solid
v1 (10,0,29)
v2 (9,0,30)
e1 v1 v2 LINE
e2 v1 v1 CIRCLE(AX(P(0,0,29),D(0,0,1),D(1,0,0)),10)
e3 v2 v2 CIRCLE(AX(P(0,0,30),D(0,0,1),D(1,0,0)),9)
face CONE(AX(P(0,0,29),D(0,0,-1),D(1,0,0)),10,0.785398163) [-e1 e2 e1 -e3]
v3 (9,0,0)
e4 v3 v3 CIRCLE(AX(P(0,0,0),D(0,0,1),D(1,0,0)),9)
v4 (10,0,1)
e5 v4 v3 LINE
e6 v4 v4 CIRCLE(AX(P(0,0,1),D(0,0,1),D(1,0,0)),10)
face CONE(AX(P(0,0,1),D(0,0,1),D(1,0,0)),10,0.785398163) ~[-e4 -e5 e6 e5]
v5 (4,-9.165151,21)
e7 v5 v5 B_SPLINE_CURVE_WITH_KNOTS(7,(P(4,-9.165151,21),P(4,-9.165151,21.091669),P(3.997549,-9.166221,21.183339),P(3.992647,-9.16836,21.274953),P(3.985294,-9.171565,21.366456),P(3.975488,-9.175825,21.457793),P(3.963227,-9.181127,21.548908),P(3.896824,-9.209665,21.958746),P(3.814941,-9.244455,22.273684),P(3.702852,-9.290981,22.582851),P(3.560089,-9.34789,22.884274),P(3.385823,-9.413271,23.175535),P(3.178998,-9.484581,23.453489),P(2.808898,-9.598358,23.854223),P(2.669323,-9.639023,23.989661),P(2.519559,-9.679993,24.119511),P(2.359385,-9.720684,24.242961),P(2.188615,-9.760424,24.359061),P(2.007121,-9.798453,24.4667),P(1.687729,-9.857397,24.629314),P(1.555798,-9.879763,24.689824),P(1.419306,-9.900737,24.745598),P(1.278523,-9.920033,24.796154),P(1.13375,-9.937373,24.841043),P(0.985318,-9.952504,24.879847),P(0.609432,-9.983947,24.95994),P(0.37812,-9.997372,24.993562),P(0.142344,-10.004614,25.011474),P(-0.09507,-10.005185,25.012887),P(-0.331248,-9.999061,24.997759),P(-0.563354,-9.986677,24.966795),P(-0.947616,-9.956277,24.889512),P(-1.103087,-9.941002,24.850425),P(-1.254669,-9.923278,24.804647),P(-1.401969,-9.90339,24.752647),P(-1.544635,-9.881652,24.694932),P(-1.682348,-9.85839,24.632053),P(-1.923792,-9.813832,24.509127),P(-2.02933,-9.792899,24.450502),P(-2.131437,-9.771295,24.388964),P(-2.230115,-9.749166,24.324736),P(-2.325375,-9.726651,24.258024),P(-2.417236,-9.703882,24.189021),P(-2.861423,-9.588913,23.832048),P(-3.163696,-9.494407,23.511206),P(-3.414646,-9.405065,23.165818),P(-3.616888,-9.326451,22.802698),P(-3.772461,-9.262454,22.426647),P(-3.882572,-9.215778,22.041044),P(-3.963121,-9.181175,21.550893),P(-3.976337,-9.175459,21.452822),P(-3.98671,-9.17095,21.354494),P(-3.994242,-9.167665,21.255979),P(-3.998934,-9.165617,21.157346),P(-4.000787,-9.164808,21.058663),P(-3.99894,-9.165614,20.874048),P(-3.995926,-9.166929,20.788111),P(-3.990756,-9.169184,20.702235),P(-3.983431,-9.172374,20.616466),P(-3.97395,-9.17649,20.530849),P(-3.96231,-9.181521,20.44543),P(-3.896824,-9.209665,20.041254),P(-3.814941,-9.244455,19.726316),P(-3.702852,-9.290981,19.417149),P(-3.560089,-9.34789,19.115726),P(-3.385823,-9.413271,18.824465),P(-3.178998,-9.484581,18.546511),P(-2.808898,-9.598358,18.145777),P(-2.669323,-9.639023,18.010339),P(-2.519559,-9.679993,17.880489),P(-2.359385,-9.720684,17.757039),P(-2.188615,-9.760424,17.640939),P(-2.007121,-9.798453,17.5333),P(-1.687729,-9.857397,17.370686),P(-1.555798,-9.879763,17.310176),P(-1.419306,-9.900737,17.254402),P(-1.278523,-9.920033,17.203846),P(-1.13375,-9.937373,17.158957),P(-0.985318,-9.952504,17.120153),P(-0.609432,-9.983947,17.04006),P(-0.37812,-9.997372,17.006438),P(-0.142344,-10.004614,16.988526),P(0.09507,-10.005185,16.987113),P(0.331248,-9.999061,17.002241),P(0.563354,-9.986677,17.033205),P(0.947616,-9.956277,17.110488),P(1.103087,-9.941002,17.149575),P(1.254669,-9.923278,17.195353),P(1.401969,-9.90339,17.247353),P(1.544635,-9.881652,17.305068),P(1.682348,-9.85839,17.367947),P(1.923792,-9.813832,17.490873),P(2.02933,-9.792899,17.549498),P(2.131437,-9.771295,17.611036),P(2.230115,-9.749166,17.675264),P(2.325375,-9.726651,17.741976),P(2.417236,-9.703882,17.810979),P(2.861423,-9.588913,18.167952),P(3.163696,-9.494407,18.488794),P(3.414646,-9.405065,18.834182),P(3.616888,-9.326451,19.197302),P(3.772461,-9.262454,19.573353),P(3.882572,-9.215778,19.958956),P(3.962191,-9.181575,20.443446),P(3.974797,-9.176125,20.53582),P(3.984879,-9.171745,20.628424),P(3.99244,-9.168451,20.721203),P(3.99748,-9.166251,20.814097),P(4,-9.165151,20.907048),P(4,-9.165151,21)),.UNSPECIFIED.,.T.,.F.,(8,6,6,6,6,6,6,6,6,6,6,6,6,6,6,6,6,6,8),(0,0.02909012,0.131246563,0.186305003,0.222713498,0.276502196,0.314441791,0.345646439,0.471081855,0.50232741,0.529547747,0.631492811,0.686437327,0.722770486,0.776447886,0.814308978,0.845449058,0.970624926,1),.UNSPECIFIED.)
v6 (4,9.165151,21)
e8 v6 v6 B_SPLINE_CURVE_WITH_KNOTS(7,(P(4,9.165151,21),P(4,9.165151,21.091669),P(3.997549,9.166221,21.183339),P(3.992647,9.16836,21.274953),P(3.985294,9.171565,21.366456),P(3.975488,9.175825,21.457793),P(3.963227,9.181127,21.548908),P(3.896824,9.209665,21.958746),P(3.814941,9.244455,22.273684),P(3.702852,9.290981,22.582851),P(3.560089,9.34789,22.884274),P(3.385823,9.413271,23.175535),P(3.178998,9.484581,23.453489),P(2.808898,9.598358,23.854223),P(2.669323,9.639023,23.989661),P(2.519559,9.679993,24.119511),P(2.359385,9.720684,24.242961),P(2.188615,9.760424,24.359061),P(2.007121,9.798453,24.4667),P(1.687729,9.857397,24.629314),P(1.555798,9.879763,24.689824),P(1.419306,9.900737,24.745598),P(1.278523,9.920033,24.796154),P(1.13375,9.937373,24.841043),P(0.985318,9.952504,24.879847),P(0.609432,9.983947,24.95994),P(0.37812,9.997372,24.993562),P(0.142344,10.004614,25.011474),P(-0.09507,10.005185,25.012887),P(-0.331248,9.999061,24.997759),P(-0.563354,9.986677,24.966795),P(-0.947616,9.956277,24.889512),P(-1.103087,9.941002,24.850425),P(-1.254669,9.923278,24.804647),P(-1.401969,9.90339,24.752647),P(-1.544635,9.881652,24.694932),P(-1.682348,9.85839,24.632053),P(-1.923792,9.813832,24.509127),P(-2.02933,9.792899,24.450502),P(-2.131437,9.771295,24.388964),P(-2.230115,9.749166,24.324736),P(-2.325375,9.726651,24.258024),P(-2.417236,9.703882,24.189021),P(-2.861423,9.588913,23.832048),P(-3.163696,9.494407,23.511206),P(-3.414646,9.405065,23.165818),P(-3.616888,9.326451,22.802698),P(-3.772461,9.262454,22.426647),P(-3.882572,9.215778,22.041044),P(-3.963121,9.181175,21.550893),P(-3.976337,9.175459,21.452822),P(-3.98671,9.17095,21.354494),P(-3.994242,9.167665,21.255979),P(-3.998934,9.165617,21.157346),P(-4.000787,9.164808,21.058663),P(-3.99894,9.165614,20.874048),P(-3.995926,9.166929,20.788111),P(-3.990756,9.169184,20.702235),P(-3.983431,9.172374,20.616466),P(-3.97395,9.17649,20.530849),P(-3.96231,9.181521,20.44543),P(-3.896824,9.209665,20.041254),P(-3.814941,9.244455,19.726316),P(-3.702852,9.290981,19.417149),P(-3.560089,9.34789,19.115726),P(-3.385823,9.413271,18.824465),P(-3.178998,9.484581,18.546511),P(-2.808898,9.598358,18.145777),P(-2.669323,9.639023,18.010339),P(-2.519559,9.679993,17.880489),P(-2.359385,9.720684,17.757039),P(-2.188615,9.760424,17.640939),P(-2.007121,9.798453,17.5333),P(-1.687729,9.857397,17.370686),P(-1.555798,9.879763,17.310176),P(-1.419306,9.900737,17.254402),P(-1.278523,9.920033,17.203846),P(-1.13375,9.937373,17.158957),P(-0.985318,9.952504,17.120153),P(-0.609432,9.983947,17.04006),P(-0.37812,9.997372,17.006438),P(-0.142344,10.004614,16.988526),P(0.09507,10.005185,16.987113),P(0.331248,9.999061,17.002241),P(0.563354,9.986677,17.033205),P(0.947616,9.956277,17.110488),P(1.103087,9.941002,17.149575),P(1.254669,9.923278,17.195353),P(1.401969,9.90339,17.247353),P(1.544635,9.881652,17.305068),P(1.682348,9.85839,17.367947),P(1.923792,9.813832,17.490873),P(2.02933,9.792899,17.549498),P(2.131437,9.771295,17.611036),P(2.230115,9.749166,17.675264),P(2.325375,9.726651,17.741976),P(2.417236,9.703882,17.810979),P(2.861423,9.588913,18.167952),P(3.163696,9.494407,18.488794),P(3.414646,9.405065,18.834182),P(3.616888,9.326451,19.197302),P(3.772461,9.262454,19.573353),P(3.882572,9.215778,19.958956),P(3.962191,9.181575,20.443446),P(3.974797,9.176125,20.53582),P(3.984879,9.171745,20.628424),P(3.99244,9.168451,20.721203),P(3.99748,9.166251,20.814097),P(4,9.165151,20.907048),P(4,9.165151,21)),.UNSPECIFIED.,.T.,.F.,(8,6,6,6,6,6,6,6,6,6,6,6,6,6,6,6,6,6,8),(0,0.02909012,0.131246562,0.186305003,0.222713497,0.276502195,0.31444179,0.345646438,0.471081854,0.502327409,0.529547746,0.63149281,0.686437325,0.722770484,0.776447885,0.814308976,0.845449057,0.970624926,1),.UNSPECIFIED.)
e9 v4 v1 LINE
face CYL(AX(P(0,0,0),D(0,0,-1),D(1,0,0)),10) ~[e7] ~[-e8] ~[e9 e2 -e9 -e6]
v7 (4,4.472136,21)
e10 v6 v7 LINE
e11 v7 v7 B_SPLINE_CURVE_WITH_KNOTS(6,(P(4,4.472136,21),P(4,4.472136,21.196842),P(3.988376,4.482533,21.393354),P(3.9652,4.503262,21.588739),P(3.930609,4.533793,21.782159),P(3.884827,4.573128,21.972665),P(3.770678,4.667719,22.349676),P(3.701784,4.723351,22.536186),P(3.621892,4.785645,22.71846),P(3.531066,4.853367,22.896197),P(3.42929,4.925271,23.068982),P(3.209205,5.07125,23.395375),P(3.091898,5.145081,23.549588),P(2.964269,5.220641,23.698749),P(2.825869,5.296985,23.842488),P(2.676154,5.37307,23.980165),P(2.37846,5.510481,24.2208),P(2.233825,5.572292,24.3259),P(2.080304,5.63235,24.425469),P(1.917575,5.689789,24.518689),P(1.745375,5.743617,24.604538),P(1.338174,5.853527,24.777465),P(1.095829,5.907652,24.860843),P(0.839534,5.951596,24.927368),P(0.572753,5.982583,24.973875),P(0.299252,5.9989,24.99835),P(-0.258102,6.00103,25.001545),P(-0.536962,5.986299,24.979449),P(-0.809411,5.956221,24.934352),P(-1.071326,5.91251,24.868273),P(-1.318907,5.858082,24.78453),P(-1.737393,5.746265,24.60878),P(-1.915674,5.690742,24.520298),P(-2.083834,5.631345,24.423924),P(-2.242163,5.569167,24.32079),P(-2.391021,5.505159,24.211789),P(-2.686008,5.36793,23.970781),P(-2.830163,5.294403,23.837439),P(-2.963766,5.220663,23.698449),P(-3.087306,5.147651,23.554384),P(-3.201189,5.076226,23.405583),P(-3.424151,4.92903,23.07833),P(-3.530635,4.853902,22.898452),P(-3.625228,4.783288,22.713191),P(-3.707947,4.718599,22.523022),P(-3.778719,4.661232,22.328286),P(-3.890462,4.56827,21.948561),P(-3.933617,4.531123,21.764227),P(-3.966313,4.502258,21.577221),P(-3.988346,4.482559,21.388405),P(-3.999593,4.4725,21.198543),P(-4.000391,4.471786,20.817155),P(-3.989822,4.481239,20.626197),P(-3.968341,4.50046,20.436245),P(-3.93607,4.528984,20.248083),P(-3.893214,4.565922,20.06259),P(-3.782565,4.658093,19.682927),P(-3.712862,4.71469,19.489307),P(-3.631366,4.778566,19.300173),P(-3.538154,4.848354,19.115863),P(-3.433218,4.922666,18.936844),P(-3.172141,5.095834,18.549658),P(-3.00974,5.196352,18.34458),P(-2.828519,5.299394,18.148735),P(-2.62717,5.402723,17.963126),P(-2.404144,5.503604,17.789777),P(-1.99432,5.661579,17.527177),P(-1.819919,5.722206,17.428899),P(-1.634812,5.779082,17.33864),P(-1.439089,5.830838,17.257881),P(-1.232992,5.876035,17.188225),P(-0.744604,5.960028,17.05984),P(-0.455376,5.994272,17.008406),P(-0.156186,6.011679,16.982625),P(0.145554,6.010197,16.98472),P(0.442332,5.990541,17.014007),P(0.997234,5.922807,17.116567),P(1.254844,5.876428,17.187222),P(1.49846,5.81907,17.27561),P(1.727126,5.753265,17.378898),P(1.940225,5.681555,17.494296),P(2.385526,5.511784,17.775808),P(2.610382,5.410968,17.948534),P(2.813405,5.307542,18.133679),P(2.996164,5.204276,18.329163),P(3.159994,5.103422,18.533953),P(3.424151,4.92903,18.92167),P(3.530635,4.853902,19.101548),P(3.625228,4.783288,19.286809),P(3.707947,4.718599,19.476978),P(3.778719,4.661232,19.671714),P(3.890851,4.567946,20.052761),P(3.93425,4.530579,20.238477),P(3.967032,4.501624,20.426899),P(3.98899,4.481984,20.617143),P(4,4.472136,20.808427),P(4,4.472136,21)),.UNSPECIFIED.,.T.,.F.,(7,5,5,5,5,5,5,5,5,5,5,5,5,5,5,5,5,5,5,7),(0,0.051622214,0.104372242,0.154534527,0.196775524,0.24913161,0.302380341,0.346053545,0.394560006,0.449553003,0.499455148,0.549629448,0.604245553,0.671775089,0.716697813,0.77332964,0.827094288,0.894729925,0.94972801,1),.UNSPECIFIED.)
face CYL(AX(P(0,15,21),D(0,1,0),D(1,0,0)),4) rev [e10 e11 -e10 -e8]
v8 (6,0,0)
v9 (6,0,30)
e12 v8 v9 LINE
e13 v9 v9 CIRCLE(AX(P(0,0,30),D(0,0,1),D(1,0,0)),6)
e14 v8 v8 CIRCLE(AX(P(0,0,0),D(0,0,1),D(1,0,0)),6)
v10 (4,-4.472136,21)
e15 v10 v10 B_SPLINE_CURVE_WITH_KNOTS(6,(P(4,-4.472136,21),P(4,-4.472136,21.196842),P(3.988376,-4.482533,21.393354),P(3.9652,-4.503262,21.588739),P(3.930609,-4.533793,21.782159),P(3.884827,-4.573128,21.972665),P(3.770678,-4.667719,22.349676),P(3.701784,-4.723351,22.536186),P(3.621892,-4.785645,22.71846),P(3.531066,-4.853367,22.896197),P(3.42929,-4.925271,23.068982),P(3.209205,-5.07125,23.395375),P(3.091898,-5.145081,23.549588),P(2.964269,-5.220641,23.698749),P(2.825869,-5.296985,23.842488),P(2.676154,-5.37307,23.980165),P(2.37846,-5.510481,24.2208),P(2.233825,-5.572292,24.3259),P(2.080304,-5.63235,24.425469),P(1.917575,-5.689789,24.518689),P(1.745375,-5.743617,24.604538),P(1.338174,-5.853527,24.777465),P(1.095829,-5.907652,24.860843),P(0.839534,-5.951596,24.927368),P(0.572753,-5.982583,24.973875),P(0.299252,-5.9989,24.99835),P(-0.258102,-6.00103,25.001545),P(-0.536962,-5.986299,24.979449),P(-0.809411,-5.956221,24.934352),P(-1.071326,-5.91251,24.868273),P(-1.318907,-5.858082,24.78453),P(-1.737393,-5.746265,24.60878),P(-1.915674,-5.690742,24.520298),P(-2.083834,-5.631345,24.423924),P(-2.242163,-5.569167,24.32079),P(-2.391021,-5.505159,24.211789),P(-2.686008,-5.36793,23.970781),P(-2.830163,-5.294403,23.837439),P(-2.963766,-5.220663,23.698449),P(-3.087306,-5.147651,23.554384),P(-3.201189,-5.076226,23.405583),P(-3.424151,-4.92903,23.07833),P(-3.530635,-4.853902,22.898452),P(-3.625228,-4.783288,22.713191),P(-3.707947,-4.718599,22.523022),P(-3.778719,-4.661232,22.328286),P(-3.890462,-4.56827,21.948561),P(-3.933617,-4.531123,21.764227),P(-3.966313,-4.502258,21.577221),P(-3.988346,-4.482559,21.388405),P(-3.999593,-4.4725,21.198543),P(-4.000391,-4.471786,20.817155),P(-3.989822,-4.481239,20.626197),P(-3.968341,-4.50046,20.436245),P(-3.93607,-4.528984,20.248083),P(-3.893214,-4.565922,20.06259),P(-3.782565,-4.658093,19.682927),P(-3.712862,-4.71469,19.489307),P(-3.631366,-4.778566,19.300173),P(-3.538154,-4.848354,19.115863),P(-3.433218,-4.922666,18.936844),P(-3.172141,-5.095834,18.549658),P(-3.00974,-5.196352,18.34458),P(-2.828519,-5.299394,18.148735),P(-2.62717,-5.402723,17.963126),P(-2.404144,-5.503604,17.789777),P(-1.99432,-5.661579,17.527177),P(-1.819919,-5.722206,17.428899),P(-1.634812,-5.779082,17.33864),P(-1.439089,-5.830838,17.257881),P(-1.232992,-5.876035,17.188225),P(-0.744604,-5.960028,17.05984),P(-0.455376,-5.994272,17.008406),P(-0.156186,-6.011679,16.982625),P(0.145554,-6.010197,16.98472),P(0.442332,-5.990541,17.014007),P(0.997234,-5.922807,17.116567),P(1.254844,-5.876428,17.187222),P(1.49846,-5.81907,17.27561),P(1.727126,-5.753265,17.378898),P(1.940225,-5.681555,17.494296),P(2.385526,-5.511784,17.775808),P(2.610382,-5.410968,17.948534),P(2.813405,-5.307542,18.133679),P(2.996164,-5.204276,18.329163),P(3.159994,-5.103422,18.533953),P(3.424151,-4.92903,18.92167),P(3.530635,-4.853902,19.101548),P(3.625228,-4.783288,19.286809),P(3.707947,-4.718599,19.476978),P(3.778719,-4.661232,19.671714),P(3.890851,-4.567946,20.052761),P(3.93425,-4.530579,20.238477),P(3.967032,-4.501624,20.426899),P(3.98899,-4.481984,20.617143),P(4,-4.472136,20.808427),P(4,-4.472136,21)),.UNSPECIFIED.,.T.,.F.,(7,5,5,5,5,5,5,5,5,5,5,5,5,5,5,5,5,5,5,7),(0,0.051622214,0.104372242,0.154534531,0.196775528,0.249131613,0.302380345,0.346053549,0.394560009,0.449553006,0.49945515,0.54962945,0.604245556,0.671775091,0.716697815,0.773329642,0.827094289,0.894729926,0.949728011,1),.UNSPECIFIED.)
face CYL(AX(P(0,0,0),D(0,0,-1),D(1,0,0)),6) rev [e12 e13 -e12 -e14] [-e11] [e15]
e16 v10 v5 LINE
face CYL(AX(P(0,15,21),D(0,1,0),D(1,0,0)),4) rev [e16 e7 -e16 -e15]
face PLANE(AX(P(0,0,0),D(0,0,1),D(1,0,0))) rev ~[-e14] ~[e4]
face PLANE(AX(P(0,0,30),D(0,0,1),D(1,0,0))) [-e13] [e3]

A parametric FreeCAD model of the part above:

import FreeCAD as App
import Part
import Sketcher
from FreeCAD import Vector


def edges_at(feature, points):
    """Names of the edges that pass closest to the given points."""
    edges = feature.Shape.Edges
    near = lambda p: min(range(len(edges)), key=lambda i: edges[i].distToShape(Part.Vertex(*p))[0])
    return sorted({f"Edge{near(p) + 1}" for p in points})

doc = App.newDocument("Part")
params = doc.addObject("Spreadsheet::Sheet", "Params")
for row, (alias, value) in enumerate([
    ("sketch1_diameter", "8 mm"),
    ("pad1_length", "30 mm"),
    ("sketch2_diameter", "12 mm"),
    ("pad2_length", "30 mm"),
    ("sketch3_diameter", "20 mm"),
    ("pad3_length", "30 mm"),
    ("chamfer_size", "1 mm"),
    ("chamfer2_size", "1 mm"),
], start=1):
    params.set(f"A{row}", alias)
    params.set(f"B{row}", "=" + value)
    params.setAlias(f"B{row}", alias)

body = doc.addObject("PartDesign::Body", "Body")

# Sketch on XZ plane
sketch1 = body.newObject("Sketcher::SketchObject", "Sketch")
sketch1.AttachmentSupport = (doc.getObject("XZ_Plane"), [""])
sketch1.MapMode = "FlatFace"
sketch1.AttachmentOffset = App.Placement(Vector(0, 0, -15), App.Rotation())
sketch1.addGeometry(Part.Circle(Vector(0, 21, 0), Vector(0, 0, 1), 4), False)
sketch1.addConstraint(Sketcher.Constraint("PointOnObject", 0, 3, -2))
sketch1.addConstraint(Sketcher.Constraint("Diameter", 0, 8.0))
sketch1.addConstraint(Sketcher.Constraint("DistanceY", -1, 1, 0, 3, 21.0))
sketch1.setExpression("Constraints[1]", "Params.sketch1_diameter")
pad1 = body.newObject("PartDesign::Pad", "Pad")
pad1.Profile = sketch1
pad1.setExpression("Length", "Params.pad1_length")
body2 = doc.addObject("PartDesign::Body", "Body001")

# Sketch on XY plane
sketch2 = body2.newObject("Sketcher::SketchObject", "Sketch001")
sketch2.AttachmentSupport = (doc.getObject("XY_Plane001"), [""])
sketch2.MapMode = "FlatFace"
sketch2.addGeometry(Part.Circle(Vector(0, 0, 0), Vector(0, 0, 1), 6), False)
sketch2.addConstraint(Sketcher.Constraint("Coincident", 0, 3, -1, 1))
sketch2.addConstraint(Sketcher.Constraint("Diameter", 0, 12.0))
sketch2.setExpression("Constraints[1]", "Params.sketch2_diameter")
pad2 = body2.newObject("PartDesign::Pad", "Pad001")
pad2.Profile = sketch2
pad2.setExpression("Length", "Params.pad2_length")
body3 = doc.addObject("PartDesign::Body", "Body002")

# Sketch on XY plane
sketch3 = body3.newObject("Sketcher::SketchObject", "Sketch002")
sketch3.AttachmentSupport = (doc.getObject("XY_Plane002"), [""])
sketch3.MapMode = "FlatFace"
sketch3.addGeometry(Part.Circle(Vector(0, 0, 0), Vector(0, 0, 1), 10), False)
sketch3.addConstraint(Sketcher.Constraint("Coincident", 0, 3, -1, 1))
sketch3.addConstraint(Sketcher.Constraint("Diameter", 0, 20.0))
sketch3.setExpression("Constraints[1]", "Params.sketch3_diameter")
pad3 = body3.newObject("PartDesign::Pad", "Pad002")
pad3.Profile = sketch3
pad3.setExpression("Length", "Params.pad3_length")
doc.recompute()

boolean = body3.newObject("PartDesign::Boolean", "Boolean")
boolean.Type = "Cut"
boolean.addObjects([body2])
doc.recompute()

boolean2 = body3.newObject("PartDesign::Boolean", "Boolean001")
boolean2.Type = "Cut"
boolean2.addObjects([body])
doc.recompute()

chamfer = body3.newObject("PartDesign::Chamfer", "Chamfer")
chamfer.Base = (boolean2, edges_at(boolean2, [(-10, 0, 30)]))
chamfer.setExpression("Size", "Params.chamfer_size")
doc.recompute()

chamfer2 = body3.newObject("PartDesign::Chamfer", "Chamfer001")
chamfer2.Base = (chamfer, edges_at(chamfer, [(-10, 0, 0)]))
chamfer2.setExpression("Size", "Params.chamfer2_size")

doc.recompute()
